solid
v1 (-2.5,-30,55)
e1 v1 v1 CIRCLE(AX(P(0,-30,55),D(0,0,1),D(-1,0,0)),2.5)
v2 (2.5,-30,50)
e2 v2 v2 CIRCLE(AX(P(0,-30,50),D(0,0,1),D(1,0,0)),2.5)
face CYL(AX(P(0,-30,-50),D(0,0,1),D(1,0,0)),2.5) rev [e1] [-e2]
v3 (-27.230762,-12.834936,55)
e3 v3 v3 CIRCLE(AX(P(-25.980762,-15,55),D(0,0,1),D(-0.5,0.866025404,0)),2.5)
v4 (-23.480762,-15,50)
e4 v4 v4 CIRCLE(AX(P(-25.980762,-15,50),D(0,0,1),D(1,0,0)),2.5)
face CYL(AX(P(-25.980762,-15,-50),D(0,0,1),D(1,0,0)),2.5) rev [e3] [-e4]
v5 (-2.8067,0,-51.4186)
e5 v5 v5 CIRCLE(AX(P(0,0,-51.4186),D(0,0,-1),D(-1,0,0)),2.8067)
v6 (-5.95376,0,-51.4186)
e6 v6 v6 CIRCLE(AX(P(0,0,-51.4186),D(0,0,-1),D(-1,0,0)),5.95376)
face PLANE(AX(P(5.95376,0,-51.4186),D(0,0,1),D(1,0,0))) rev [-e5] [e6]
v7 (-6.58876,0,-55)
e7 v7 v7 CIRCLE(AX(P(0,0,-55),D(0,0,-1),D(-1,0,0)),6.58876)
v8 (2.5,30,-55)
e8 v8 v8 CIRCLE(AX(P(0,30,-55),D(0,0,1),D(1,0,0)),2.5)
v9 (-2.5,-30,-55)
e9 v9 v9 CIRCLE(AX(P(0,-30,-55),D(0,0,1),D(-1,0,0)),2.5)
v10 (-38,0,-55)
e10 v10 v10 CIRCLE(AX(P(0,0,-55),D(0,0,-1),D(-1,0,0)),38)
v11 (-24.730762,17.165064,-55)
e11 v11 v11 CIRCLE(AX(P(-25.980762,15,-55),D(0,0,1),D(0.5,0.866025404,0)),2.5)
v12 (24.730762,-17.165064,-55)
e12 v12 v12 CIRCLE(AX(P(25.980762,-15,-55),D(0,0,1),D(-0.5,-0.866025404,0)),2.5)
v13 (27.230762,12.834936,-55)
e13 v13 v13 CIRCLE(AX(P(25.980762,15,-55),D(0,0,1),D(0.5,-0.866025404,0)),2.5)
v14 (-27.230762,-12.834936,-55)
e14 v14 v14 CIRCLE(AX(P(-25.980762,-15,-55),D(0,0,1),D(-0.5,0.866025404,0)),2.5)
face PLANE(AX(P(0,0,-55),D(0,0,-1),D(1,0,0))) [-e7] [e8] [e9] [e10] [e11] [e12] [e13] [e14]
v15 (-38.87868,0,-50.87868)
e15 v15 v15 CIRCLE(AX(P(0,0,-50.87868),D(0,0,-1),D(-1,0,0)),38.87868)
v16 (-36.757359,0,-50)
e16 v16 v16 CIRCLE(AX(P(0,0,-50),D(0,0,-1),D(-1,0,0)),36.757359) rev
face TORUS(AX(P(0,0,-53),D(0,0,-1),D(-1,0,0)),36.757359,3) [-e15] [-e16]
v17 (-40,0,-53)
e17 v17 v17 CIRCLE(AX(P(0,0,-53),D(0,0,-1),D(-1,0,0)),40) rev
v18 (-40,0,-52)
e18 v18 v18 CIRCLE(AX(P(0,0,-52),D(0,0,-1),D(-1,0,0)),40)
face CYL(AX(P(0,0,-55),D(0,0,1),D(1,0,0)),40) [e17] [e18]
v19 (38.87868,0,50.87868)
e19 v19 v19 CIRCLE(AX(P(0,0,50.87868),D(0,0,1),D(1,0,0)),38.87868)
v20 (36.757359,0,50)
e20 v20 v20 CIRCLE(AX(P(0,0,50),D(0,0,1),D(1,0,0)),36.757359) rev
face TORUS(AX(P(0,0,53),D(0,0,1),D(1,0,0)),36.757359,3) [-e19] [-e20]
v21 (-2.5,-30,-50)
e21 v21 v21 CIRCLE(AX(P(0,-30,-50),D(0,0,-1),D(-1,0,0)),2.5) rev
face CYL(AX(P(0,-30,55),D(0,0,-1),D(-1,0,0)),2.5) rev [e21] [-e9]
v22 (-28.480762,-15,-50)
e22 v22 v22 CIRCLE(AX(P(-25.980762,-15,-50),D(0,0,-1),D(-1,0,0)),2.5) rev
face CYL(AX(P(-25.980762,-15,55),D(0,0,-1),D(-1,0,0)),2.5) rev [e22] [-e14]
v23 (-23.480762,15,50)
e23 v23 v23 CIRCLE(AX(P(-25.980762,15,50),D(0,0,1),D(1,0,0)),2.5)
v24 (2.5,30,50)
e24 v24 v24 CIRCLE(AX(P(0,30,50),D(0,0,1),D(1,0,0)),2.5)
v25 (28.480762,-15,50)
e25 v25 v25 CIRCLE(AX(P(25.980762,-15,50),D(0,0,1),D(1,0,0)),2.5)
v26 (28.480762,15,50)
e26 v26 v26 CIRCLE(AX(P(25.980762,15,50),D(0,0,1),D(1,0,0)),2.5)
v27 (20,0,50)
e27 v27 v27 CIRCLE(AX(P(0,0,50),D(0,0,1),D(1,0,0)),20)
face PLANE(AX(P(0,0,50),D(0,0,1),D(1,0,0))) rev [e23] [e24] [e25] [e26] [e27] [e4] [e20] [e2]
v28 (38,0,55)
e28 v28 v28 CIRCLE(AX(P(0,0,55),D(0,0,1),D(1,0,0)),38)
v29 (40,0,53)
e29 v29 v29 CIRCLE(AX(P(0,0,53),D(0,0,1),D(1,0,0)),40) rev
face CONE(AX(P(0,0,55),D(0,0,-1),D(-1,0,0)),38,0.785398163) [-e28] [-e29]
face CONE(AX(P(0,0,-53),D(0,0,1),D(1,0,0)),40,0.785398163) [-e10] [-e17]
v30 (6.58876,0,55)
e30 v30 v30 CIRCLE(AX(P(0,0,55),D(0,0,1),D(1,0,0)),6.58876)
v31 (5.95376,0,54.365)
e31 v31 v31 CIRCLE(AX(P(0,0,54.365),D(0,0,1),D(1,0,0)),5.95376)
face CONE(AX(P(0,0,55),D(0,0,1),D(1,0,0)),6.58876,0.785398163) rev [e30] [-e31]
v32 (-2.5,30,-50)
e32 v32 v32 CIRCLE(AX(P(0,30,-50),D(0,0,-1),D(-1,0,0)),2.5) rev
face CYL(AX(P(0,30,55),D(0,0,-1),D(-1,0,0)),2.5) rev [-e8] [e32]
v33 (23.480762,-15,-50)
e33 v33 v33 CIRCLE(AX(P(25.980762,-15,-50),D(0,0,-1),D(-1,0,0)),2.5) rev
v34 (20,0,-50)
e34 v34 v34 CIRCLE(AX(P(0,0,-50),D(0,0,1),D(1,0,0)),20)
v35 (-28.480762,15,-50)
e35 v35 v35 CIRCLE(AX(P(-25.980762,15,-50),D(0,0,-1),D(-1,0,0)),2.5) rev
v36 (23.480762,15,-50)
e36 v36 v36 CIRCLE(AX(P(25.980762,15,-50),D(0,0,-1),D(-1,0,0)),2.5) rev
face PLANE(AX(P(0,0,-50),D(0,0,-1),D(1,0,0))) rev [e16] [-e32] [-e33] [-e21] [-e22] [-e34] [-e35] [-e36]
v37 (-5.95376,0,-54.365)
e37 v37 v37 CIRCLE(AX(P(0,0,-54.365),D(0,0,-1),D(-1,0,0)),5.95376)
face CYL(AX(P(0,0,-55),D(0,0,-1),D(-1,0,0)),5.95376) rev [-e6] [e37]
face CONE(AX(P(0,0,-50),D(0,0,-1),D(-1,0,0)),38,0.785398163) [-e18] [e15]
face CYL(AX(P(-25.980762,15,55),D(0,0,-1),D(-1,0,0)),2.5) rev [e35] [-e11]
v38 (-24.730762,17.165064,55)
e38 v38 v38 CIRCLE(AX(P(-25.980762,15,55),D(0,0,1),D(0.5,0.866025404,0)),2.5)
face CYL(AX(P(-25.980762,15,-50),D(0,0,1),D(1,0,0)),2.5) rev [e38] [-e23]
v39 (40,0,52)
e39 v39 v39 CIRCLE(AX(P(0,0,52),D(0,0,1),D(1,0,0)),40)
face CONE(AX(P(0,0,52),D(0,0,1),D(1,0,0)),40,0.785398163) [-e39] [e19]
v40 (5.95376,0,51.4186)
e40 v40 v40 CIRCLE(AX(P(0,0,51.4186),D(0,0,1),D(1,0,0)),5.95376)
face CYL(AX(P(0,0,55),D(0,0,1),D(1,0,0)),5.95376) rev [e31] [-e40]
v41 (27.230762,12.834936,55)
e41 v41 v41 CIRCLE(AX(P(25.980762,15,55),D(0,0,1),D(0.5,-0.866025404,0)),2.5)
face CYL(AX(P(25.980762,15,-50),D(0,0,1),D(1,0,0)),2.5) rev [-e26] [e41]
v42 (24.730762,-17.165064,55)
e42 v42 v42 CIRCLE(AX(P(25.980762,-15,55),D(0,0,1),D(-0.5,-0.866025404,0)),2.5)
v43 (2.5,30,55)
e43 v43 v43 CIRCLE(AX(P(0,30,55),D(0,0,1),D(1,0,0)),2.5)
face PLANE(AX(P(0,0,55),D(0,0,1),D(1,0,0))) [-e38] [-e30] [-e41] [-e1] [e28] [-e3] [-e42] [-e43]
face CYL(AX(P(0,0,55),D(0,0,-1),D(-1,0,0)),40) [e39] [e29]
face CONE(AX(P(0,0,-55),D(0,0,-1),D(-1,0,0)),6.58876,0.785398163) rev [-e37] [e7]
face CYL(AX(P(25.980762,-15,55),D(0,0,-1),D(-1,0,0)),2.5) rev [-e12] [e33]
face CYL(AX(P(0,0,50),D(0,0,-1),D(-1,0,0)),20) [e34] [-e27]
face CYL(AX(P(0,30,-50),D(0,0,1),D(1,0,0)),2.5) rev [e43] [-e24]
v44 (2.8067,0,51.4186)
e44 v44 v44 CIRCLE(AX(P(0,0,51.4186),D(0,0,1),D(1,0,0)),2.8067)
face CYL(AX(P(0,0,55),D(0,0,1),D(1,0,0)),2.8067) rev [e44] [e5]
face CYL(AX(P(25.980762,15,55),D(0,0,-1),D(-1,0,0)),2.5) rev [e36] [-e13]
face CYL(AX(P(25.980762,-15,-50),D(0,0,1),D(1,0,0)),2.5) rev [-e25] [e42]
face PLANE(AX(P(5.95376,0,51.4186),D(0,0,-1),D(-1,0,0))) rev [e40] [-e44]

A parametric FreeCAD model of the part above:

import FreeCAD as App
import Part
import Sketcher
Q = App.Units.Quantity


def edges_at(feature, points):
    """Names of the edges that pass closest to the given points."""
    edges = feature.Shape.Edges
    near = lambda p: min(range(len(edges)), key=lambda i: edges[i].distToShape(Part.Vertex(*p))[0])
    return sorted({f"Edge{near(p) + 1}" for p in points})

doc = App.newDocument("Part")
body = doc.addObject("PartDesign::Body", "Body")

sketch1 = body.newObject("Sketcher::SketchObject", "Sketch")
sketch1.AttachmentSupport = (doc.getObject("XY_Plane"), [""])
sketch1.MapMode = "FlatFace"
sketch1.addGeometry(Part.Circle(App.Vector(0, 0, 0), App.Vector(0, 0, 1), 20), False)
sketch1.addConstraint(Sketcher.Constraint("Coincident", 0, 3, -1, 1))
sketch1.addConstraint(Sketcher.Constraint("Diameter", 0, 40.0))
pad1 = body.newObject("PartDesign::Pad", "Pad")
pad1.Profile = sketch1
pad1.Length = 100
pad1.Midplane = True

sketch2 = body.newObject("Sketcher::SketchObject", "Sketch001")
sketch2.AttachmentSupport = (doc.getObject("XY_Plane"), [""])
sketch2.MapMode = "FlatFace"
sketch2.AttachmentOffset = App.Placement(App.Vector(0, 0, 50), App.Rotation())
sketch2.addGeometry(Part.Circle(App.Vector(0, 0, 0), App.Vector(0, 0, 1), 40), False)
sketch2.addConstraint(Sketcher.Constraint("Coincident", 0, 3, -1, 1))
sketch2.addConstraint(Sketcher.Constraint("Diameter", 0, 80.0))
pad2 = body.newObject("PartDesign::Pad", "Pad001")
pad2.Profile = sketch2
pad2.Length = 5
doc.recompute()

chamfer = body.newObject("PartDesign::Chamfer", "Chamfer")
chamfer.Base = (pad2, edges_at(pad2, [(-40, 0, 50), (-40, 0, 55)]))
chamfer.Size = 2

sketch3 = body.newObject("Sketcher::SketchObject", "Sketch002")
sketch3.AttachmentSupport = (doc.getObject("XY_Plane"), [""])
sketch3.MapMode = "FlatFace"
sketch3.AttachmentOffset = App.Placement(App.Vector(0, 0, 55), App.Rotation())
sketch3.addGeometry(Part.Circle(App.Vector(0, 30, 0), App.Vector(0, 0, 1), 2.5), False)
sketch3.addConstraint(Sketcher.Constraint("PointOnObject", 0, 3, -2))
sketch3.addConstraint(Sketcher.Constraint("Diameter", 0, 5.0))
sketch3.addConstraint(Sketcher.Constraint("DistanceY", -1, 1, 0, 3, 30.0))
pocket1 = body.newObject("PartDesign::Pocket", "Pocket")
pocket1.Profile = sketch3
pocket1.Type = "ThroughAll"
doc.recompute()

polarpattern = body.newObject("PartDesign::PolarPattern", "PolarPattern")
polarpattern.Originals = [pocket1]
polarpattern.Axis = (doc.getObject("Z_Axis"), [""])
polarpattern.Angle = 360
polarpattern.Occurrences = 6
body.Tip = polarpattern
doc.recompute()

fillet = body.newObject("PartDesign::Fillet", "Fillet")
fillet.Base = (polarpattern, edges_at(polarpattern, [(-38, 0, 50)]))
fillet.Radius = 3

sketch4 = body.newObject("Sketcher::SketchObject", "Sketch003")
sketch4.AttachmentSupport = (doc.getObject("YZ_Plane"), [""])
sketch4.MapMode = "FlatFace"
sketch4.addGeometry(Part.LineSegment(App.Vector(0, -55, 0), App.Vector(0, 55, 0)), False)
sketch4.addGeometry(Part.LineSegment(App.Vector(0, 55, 0), App.Vector(-6.6, 55, 0)), False)
sketch4.addGeometry(Part.LineSegment(App.Vector(-6.6, 55, 0), App.Vector(-6, 54.4, 0)), False)
sketch4.addGeometry(Part.LineSegment(App.Vector(-6, 54.4, 0), App.Vector(-6, 51.4, 0)), False)
sketch4.addGeometry(Part.LineSegment(App.Vector(-6, 51.4, 0), App.Vector(-2.8, 51.4, 0)), False)
sketch4.addGeometry(Part.LineSegment(App.Vector(-2.8, 51.4, 0), App.Vector(-2.8, -55, 0)), False)
sketch4.addGeometry(Part.LineSegment(App.Vector(-2.8, -55, 0), App.Vector(0, -55, 0)), False)
sketch4.addConstraint(Sketcher.Constraint("Coincident", 0, 2, 1, 1))
sketch4.addConstraint(Sketcher.Constraint("Coincident", 1, 2, 2, 1))
sketch4.addConstraint(Sketcher.Constraint("Coincident", 2, 2, 3, 1))
sketch4.addConstraint(Sketcher.Constraint("Coincident", 3, 2, 4, 1))
sketch4.addConstraint(Sketcher.Constraint("Coincident", 4, 2, 5, 1))
sketch4.addConstraint(Sketcher.Constraint("Coincident", 5, 2, 6, 1))
sketch4.addConstraint(Sketcher.Constraint("Coincident", 6, 2, 0, 1))
sketch4.addConstraint(Sketcher.Constraint("Vertical", 0))
sketch4.addConstraint(Sketcher.Constraint("Horizontal", 1))
sketch4.addConstraint(Sketcher.Constraint("Vertical", 3))
sketch4.addConstraint(Sketcher.Constraint("Horizontal", 4))
sketch4.addConstraint(Sketcher.Constraint("Vertical", 5))
sketch4.addConstraint(Sketcher.Constraint("Horizontal", 6))
sketch4.addConstraint(Sketcher.Constraint("Symmetric", 0, 2, 6, 2, -1, 1))
sketch4.addConstraint(Sketcher.Constraint("DistanceY", 0, 1, 0, 2, 110.0))
sketch4.addConstraint(Sketcher.Constraint("Angle", 2, Q("-45 deg")))
sketch4.addConstraint(Sketcher.Constraint("DistanceX", 6, 1, 6, 2, 2.8067))
sketch4.addConstraint(Sketcher.Constraint("DistanceY", 3, 2, 3, 1, 2.9464))
sketch4.addConstraint(Sketcher.Constraint("DistanceY", 5, 2, 5, 1, 106.4186))
sketch4.addConstraint(Sketcher.Constraint("DistanceX", 1, 2, 1, 1, 6.58876))
groove = body.newObject("PartDesign::Groove", "Groove")
groove.Profile = sketch4
groove.ReferenceAxis = (sketch4, ["V_Axis"])
groove.Angle = 360
doc.recompute()

mirrored = body.newObject("PartDesign::Mirrored", "Mirrored")
mirrored.Originals = [pad1, pad2, pocket1, groove]
mirrored.MirrorPlane = (doc.getObject("XY_Plane"), [""])
body.Tip = mirrored

sketch5 = body.newObject("Sketcher::SketchObject", "Sketch004")
sketch5.AttachmentSupport = (doc.getObject("XY_Plane"), [""])
sketch5.MapMode = "FlatFace"
sketch5.AttachmentOffset = App.Placement(App.Vector(0, 0, -55), App.Rotation())
sketch5.addGeometry(Part.Circle(App.Vector(-26, 15, 0), App.Vector(0, 0, 1), 2.5), False)
sketch5.addConstraint(Sketcher.Constraint("Diameter", 0, 5.0))
sketch5.addConstraint(Sketcher.Constraint("DistanceY", -1, 1, 0, 3, 15.0))
sketch5.addConstraint(Sketcher.Constraint("DistanceX", 0, 3, -1, 1, 25.980762))
pocket2 = body.newObject("PartDesign::Pocket", "Pocket001")
pocket2.Profile = sketch5
pocket2.Type = "ThroughAll"
pocket2.Reversed = True

sketch6 = body.newObject("Sketcher::SketchObject", "Sketch005")
sketch6.AttachmentSupport = (doc.getObject("XY_Plane"), [""])
sketch6.MapMode = "FlatFace"
sketch6.AttachmentOffset = App.Placement(App.Vector(0, 0, -55), App.Rotation())
sketch6.addGeometry(Part.Circle(App.Vector(-26, -15, 0), App.Vector(0, 0, 1), 2.5), False)
sketch6.addConstraint(Sketcher.Constraint("Diameter", 0, 5.0))
sketch6.addConstraint(Sketcher.Constraint("DistanceY", 0, 3, -1, 1, 15.0))
sketch6.addConstraint(Sketcher.Constraint("DistanceX", 0, 3, -1, 1, 25.980762))
pocket3 = body.newObject("PartDesign::Pocket", "Pocket002")
pocket3.Profile = sketch6
pocket3.Type = "ThroughAll"
pocket3.Reversed = True

sketch7 = body.newObject("Sketcher::SketchObject", "Sketch006")
sketch7.AttachmentSupport = (doc.getObject("XY_Plane"), [""])
sketch7.MapMode = "FlatFace"
sketch7.AttachmentOffset = App.Placement(App.Vector(0, 0, -55), App.Rotation())
sketch7.addGeometry(Part.Circle(App.Vector(0, -30, 0), App.Vector(0, 0, 1), 2.5), False)
sketch7.addConstraint(Sketcher.Constraint("PointOnObject", 0, 3, -2))
sketch7.addConstraint(Sketcher.Constraint("Diameter", 0, 5.0))
sketch7.addConstraint(Sketcher.Constraint("DistanceY", 0, 3, -1, 1, 30.0))
pocket4 = body.newObject("PartDesign::Pocket", "Pocket003")
pocket4.Profile = sketch7
pocket4.Type = "ThroughAll"
pocket4.Reversed = True

sketch8 = body.newObject("Sketcher::SketchObject", "Sketch007")
sketch8.AttachmentSupport = (doc.getObject("XY_Plane"), [""])
sketch8.MapMode = "FlatFace"
sketch8.AttachmentOffset = App.Placement(App.Vector(0, 0, -55), App.Rotation())
sketch8.addGeometry(Part.Circle(App.Vector(26, -15, 0), App.Vector(0, 0, 1), 2.5), False)
sketch8.addConstraint(Sketcher.Constraint("Diameter", 0, 5.0))
sketch8.addConstraint(Sketcher.Constraint("DistanceY", 0, 3, -1, 1, 15.0))
sketch8.addConstraint(Sketcher.Constraint("DistanceX", -1, 1, 0, 3, 25.980762))
pocket5 = body.newObject("PartDesign::Pocket", "Pocket004")
pocket5.Profile = sketch8
pocket5.Type = "ThroughAll"
pocket5.Reversed = True

sketch9 = body.newObject("Sketcher::SketchObject", "Sketch008")
sketch9.AttachmentSupport = (doc.getObject("XY_Plane"), [""])
sketch9.MapMode = "FlatFace"
sketch9.AttachmentOffset = App.Placement(App.Vector(0, 0, -55), App.Rotation())
sketch9.addGeometry(Part.Circle(App.Vector(26, 15, 0), App.Vector(0, 0, 1), 2.5), False)
sketch9.addConstraint(Sketcher.Constraint("Diameter", 0, 5.0))
sketch9.addConstraint(Sketcher.Constraint("DistanceY", -1, 1, 0, 3, 15.0))
sketch9.addConstraint(Sketcher.Constraint("DistanceX", -1, 1, 0, 3, 25.980762))
pocket6 = body.newObject("PartDesign::Pocket", "Pocket005")
pocket6.Profile = sketch9
pocket6.Type = "ThroughAll"
pocket6.Reversed = True
doc.recompute()

chamfer2 = body.newObject("PartDesign::Chamfer", "Chamfer001")
chamfer2.Base = (pocket6, edges_at(pocket6, [(-40, 0, -50), (-40, 0, -55)]))
chamfer2.Size = 2
doc.recompute()

fillet2 = body.newObject("PartDesign::Fillet", "Fillet001")
fillet2.Base = (chamfer2, edges_at(chamfer2, [(-38, 0, -50)]))
fillet2.Radius = 3

doc.recompute()
